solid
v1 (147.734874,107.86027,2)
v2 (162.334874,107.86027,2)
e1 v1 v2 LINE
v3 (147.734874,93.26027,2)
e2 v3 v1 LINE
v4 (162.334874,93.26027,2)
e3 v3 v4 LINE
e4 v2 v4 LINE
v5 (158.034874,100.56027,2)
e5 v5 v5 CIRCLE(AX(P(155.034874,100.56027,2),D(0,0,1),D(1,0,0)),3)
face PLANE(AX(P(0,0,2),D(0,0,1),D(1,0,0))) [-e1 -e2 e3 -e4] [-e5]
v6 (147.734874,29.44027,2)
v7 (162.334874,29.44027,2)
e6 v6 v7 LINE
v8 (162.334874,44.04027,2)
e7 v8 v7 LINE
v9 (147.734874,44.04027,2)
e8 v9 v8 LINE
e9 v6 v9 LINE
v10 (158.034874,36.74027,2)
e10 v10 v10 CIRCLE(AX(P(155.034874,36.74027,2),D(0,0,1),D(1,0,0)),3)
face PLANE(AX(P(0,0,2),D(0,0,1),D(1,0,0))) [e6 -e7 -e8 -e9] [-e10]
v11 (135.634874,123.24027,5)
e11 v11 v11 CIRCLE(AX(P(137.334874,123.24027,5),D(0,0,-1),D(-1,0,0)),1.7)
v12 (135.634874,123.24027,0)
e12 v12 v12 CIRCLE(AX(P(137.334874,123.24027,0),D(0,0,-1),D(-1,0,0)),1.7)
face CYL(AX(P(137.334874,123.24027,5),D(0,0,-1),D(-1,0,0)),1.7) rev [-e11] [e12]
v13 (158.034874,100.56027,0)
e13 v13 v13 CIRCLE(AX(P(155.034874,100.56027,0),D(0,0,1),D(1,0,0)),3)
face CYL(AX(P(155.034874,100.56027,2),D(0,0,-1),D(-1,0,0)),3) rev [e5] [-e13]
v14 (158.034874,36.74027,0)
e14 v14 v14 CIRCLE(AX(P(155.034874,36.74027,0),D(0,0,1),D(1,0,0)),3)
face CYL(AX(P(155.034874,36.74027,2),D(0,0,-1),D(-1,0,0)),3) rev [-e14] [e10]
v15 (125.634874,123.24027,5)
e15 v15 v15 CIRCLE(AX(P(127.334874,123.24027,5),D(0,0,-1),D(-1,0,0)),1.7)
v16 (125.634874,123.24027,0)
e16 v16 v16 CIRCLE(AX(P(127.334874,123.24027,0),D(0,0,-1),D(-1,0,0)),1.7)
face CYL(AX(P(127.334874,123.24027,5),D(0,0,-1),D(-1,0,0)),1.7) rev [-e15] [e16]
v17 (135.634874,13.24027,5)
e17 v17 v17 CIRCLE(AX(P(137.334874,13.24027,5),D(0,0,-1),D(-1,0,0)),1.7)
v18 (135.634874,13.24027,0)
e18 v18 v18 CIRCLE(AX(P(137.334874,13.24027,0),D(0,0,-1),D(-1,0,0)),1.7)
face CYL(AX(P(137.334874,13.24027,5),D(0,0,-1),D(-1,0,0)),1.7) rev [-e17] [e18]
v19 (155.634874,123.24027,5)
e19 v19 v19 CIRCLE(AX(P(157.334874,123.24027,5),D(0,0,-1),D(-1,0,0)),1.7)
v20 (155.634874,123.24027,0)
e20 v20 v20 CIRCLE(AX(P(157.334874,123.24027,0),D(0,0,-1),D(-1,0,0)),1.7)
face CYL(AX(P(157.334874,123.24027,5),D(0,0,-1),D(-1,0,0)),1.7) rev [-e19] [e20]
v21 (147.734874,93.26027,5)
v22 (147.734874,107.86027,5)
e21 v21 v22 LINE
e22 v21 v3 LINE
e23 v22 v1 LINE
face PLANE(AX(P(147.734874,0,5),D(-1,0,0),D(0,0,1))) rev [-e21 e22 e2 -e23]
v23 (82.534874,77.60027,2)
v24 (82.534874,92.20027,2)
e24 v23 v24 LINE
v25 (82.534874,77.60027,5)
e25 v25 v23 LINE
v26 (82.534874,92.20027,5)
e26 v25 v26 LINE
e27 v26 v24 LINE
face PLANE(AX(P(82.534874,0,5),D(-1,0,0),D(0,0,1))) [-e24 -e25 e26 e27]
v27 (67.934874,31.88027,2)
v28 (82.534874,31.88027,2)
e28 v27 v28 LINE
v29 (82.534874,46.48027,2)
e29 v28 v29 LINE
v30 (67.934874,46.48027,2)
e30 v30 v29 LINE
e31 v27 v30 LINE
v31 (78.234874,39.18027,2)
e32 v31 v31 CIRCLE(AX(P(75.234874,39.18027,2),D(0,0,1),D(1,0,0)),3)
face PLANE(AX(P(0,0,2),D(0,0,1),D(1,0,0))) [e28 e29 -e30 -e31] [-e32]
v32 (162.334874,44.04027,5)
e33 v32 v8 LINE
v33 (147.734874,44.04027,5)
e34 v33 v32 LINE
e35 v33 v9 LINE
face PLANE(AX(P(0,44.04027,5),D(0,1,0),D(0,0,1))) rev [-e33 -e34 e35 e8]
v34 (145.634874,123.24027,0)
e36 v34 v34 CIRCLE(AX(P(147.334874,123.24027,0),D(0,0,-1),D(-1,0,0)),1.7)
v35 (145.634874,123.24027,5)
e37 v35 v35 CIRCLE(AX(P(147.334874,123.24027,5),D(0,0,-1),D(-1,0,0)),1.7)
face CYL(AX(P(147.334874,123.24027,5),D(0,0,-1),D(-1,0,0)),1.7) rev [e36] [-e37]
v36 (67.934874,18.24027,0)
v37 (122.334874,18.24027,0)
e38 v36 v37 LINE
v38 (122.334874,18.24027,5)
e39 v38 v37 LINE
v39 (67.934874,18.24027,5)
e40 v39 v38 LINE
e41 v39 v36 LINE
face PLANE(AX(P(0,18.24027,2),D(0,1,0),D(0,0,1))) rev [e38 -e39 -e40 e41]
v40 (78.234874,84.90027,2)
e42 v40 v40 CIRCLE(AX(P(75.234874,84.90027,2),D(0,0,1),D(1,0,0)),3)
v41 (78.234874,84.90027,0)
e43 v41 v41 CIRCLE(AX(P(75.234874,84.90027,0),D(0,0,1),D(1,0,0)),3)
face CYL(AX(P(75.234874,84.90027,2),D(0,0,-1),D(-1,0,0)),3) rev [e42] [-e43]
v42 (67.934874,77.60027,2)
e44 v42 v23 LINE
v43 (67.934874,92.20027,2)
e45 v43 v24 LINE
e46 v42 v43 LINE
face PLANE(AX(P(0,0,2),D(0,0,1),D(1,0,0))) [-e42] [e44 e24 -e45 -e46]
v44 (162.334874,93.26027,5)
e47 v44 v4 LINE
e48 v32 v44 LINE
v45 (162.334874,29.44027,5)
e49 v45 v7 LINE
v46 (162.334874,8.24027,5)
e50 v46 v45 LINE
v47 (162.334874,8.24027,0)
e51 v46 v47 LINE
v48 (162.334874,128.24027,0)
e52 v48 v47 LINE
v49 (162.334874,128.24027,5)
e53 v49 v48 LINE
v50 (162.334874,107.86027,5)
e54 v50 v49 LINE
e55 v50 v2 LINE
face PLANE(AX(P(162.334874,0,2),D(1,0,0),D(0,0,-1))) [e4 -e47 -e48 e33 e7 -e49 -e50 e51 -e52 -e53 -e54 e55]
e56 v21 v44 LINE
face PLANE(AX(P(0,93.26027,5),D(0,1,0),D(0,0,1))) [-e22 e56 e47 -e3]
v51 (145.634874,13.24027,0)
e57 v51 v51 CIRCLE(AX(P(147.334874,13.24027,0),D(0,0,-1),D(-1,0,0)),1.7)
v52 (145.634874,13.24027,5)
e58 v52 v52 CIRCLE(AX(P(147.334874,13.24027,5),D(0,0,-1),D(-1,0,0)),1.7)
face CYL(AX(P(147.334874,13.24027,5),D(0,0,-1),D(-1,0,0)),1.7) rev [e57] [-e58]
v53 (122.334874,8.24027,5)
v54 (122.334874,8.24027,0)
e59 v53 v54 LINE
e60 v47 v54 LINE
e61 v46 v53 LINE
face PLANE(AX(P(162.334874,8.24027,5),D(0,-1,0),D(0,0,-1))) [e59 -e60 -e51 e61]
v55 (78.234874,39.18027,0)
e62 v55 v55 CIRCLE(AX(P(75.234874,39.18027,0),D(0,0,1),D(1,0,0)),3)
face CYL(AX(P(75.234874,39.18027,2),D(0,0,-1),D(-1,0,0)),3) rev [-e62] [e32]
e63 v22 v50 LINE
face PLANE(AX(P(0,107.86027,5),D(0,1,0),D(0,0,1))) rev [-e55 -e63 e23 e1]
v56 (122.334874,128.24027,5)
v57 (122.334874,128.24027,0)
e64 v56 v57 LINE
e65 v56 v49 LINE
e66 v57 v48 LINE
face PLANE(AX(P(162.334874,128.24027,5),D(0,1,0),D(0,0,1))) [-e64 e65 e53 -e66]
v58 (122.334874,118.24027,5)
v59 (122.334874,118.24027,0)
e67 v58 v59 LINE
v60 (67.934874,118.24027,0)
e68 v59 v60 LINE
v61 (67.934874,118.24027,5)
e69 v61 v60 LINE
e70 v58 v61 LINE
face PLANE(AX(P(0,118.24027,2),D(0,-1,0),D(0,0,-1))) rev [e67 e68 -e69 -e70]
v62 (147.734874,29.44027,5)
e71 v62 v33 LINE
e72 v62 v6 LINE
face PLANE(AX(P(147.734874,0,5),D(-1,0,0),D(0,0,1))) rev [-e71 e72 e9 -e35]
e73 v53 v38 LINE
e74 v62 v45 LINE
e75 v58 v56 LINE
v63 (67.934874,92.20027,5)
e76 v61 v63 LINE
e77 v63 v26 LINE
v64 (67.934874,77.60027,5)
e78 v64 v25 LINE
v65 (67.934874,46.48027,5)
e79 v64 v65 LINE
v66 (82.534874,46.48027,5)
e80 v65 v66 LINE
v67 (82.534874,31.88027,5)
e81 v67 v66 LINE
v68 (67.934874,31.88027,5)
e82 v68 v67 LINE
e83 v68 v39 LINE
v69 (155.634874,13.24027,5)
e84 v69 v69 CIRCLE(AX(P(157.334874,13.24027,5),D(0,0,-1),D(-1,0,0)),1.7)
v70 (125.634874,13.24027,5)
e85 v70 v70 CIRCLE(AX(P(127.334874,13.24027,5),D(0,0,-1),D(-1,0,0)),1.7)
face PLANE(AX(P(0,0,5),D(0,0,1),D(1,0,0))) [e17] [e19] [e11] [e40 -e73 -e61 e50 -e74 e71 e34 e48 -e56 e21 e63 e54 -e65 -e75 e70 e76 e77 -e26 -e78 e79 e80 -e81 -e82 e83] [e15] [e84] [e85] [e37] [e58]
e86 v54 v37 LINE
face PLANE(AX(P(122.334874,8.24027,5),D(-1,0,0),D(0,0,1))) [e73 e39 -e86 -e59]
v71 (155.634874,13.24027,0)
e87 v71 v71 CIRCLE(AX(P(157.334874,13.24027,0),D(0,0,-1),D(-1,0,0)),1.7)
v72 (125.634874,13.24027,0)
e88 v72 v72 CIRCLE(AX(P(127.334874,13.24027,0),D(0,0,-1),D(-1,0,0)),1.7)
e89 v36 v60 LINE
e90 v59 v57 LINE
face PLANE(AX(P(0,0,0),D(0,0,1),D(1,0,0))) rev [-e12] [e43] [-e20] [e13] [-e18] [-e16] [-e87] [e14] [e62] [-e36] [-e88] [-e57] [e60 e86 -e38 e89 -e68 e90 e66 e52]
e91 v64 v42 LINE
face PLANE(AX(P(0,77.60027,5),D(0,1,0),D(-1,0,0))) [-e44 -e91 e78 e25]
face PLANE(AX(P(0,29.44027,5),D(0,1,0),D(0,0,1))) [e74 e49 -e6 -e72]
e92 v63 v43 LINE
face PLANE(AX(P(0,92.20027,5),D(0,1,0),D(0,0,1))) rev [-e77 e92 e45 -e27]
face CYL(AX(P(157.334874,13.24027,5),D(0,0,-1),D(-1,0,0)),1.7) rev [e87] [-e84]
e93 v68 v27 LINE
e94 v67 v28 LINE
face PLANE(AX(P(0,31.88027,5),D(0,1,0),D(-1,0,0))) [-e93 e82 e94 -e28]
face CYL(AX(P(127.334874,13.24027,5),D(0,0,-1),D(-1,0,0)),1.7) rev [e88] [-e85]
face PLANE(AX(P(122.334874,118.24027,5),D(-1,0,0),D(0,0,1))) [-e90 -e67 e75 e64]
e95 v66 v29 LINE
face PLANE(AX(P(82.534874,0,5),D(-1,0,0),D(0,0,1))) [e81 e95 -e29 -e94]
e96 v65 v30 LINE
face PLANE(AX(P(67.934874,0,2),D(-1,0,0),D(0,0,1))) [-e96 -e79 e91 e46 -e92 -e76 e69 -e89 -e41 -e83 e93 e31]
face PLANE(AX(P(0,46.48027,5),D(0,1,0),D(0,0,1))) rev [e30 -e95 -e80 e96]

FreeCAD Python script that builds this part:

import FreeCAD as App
import Part
import Sketcher

V = App.Vector

doc = App.newDocument("Part")
body = doc.addObject("PartDesign::Body", "Body")

# Sketch on XY plane
sketch1 = body.newObject("Sketcher::SketchObject", "Sketch")
sketch1.AttachmentSupport = (doc.getObject("XY_Plane"), [""])
sketch1.MapMode = "FlatFace"
sketch1.addGeometry(Part.LineSegment(V(67.9, 118.2, 0), V(67.9, 18.2, 0)), False)
sketch1.addGeometry(Part.LineSegment(V(67.9, 18.2, 0), V(162.3, 18.2, 0)), False)
sketch1.addGeometry(Part.LineSegment(V(162.3, 18.2, 0), V(162.3, 118.2, 0)), False)
sketch1.addGeometry(Part.LineSegment(V(162.3, 118.2, 0), V(67.9, 118.2, 0)), False)
sketch1.addGeometry(Part.Circle(V(75.2, 39.2, 0), V(0, 0, 1), 3), False)
sketch1.addGeometry(Part.Circle(V(155, 36.7, 0), V(0, 0, 1), 3), False)
sketch1.addGeometry(Part.Circle(V(75.2, 84.9, 0), V(0, 0, 1), 3), False)
sketch1.addGeometry(Part.Circle(V(155, 100.6, 0), V(0, 0, 1), 3), False)
sketch1.addConstraint(Sketcher.Constraint("Coincident", 0, 2, 1, 1))
sketch1.addConstraint(Sketcher.Constraint("Coincident", 1, 2, 2, 1))
sketch1.addConstraint(Sketcher.Constraint("Coincident", 2, 2, 3, 1))
sketch1.addConstraint(Sketcher.Constraint("Coincident", 3, 2, 0, 1))
sketch1.addConstraint(Sketcher.Constraint("Vertical", 0))
sketch1.addConstraint(Sketcher.Constraint("Horizontal", 1))
sketch1.addConstraint(Sketcher.Constraint("Vertical", 2))
sketch1.addConstraint(Sketcher.Constraint("Horizontal", 3))
sketch1.addConstraint(Sketcher.Constraint("Equal", 4, 5))
sketch1.addConstraint(Sketcher.Constraint("Equal", 5, 6))
sketch1.addConstraint(Sketcher.Constraint("Equal", 6, 7))
sketch1.addConstraint(Sketcher.Constraint("Vertical", 4, 3, 6, 3))
sketch1.addConstraint(Sketcher.Constraint("Vertical", 5, 3, 7, 3))
sketch1.addConstraint(Sketcher.Constraint("Diameter", 4, 6.0))
sketch1.addConstraint(Sketcher.Constraint("DistanceY", 0, 2, 0, 1, 100.0))
sketch1.addConstraint(Sketcher.Constraint("DistanceX", 1, 1, 1, 2, 94.4))
sketch1.addConstraint(Sketcher.Constraint("DistanceX", 4, 3, 5, 3, 79.8))
sketch1.addConstraint(Sketcher.Constraint("DistanceX", 0, 2, 4, 3, 7.3))
sketch1.addConstraint(Sketcher.Constraint("DistanceY", 0, 2, 5, 3, 18.5))
sketch1.addConstraint(Sketcher.Constraint("DistanceY", 5, 3, 4, 3, 2.44))
sketch1.addConstraint(Sketcher.Constraint("DistanceY", 4, 3, 6, 3, 45.72))
sketch1.addConstraint(Sketcher.Constraint("DistanceY", 5, 3, 7, 3, 63.82))
sketch1.addConstraint(Sketcher.Constraint("DistanceY", -1, 1, 4, 3, 39.18027))
sketch1.addConstraint(Sketcher.Constraint("DistanceX", -1, 1, 4, 3, 75.234874))
pad1 = body.newObject("PartDesign::Pad", "Pad")
pad1.Profile = sketch1
pad1.Length = 2

# Sketch on XY plane
sketch2 = body.newObject("Sketcher::SketchObject", "Sketch001")
sketch2.AttachmentSupport = (doc.getObject("XY_Plane"), [""])
sketch2.MapMode = "FlatFace"
sketch2.AttachmentOffset = App.Placement(V(0, 0, 2), App.Rotation())
sketch2.addGeometry(Part.LineSegment(V(83, 78, 0), V(68, 78, 0)), False)
sketch2.addGeometry(Part.LineSegment(V(68, 78, 0), V(68, 46, 0)), False)
sketch2.addGeometry(Part.LineSegment(V(68, 46, 0), V(83, 46, 0)), False)
sketch2.addGeometry(Part.LineSegment(V(83, 46, 0), V(83, 32, 0)), False)
sketch2.addGeometry(Part.LineSegment(V(83, 32, 0), V(68, 32, 0)), False)
sketch2.addGeometry(Part.LineSegment(V(68, 32, 0), V(68, 18, 0)), False)
sketch2.addGeometry(Part.LineSegment(V(68, 18, 0), V(162, 18, 0)), False)
sketch2.addGeometry(Part.LineSegment(V(162, 18, 0), V(162, 29, 0)), False)
sketch2.addGeometry(Part.LineSegment(V(162, 29, 0), V(148, 29, 0)), False)
sketch2.addGeometry(Part.LineSegment(V(148, 29, 0), V(148, 44, 0)), False)
sketch2.addGeometry(Part.LineSegment(V(148, 44, 0), V(162, 44, 0)), False)
sketch2.addGeometry(Part.LineSegment(V(162, 44, 0), V(162, 93, 0)), False)
sketch2.addGeometry(Part.LineSegment(V(162, 93, 0), V(148, 93, 0)), False)
sketch2.addGeometry(Part.LineSegment(V(148, 93, 0), V(148, 108, 0)), False)
sketch2.addGeometry(Part.LineSegment(V(148, 108, 0), V(162, 108, 0)), False)
sketch2.addGeometry(Part.LineSegment(V(162, 108, 0), V(162, 118, 0)), False)
sketch2.addGeometry(Part.LineSegment(V(162, 118, 0), V(68, 118, 0)), False)
sketch2.addGeometry(Part.LineSegment(V(68, 118, 0), V(68, 92, 0)), False)
sketch2.addGeometry(Part.LineSegment(V(68, 92, 0), V(83, 92, 0)), False)
sketch2.addGeometry(Part.LineSegment(V(83, 92, 0), V(83, 78, 0)), False)
sketch2.addConstraint(Sketcher.Constraint("Coincident", 0, 2, 1, 1))
sketch2.addConstraint(Sketcher.Constraint("Coincident", 1, 2, 2, 1))
sketch2.addConstraint(Sketcher.Constraint("Coincident", 2, 2, 3, 1))
sketch2.addConstraint(Sketcher.Constraint("Coincident", 3, 2, 4, 1))
sketch2.addConstraint(Sketcher.Constraint("Coincident", 4, 2, 5, 1))
sketch2.addConstraint(Sketcher.Constraint("Coincident", 5, 2, 6, 1))
sketch2.addConstraint(Sketcher.Constraint("Coincident", 6, 2, 7, 1))
sketch2.addConstraint(Sketcher.Constraint("Coincident", 7, 2, 8, 1))
sketch2.addConstraint(Sketcher.Constraint("Coincident", 8, 2, 9, 1))
sketch2.addConstraint(Sketcher.Constraint("Coincident", 9, 2, 10, 1))
sketch2.addConstraint(Sketcher.Constraint("Coincident", 10, 2, 11, 1))
sketch2.addConstraint(Sketcher.Constraint("Coincident", 11, 2, 12, 1))
sketch2.addConstraint(Sketcher.Constraint("Coincident", 12, 2, 13, 1))
sketch2.addConstraint(Sketcher.Constraint("Coincident", 13, 2, 14, 1))
sketch2.addConstraint(Sketcher.Constraint("Coincident", 14, 2, 15, 1))
sketch2.addConstraint(Sketcher.Constraint("Coincident", 15, 2, 16, 1))
sketch2.addConstraint(Sketcher.Constraint("Coincident", 16, 2, 17, 1))
sketch2.addConstraint(Sketcher.Constraint("Coincident", 17, 2, 18, 1))
sketch2.addConstraint(Sketcher.Constraint("Coincident", 18, 2, 19, 1))
sketch2.addConstraint(Sketcher.Constraint("Coincident", 19, 2, 0, 1))
sketch2.addConstraint(Sketcher.Constraint("Horizontal", 0))
sketch2.addConstraint(Sketcher.Constraint("Vertical", 1))
sketch2.addConstraint(Sketcher.Constraint("Horizontal", 2))
sketch2.addConstraint(Sketcher.Constraint("Vertical", 3))
sketch2.addConstraint(Sketcher.Constraint("Horizontal", 4))
sketch2.addConstraint(Sketcher.Constraint("Vertical", 5))
sketch2.addConstraint(Sketcher.Constraint("Horizontal", 6))
sketch2.addConstraint(Sketcher.Constraint("Vertical", 7))
sketch2.addConstraint(Sketcher.Constraint("Horizontal", 8))
sketch2.addConstraint(Sketcher.Constraint("Vertical", 9))
sketch2.addConstraint(Sketcher.Constraint("Horizontal", 10))
sketch2.addConstraint(Sketcher.Constraint("Vertical", 11))
sketch2.addConstraint(Sketcher.Constraint("Horizontal", 12))
sketch2.addConstraint(Sketcher.Constraint("Vertical", 13))
sketch2.addConstraint(Sketcher.Constraint("Horizontal", 14))
sketch2.addConstraint(Sketcher.Constraint("Vertical", 15))
sketch2.addConstraint(Sketcher.Constraint("Horizontal", 16))
sketch2.addConstraint(Sketcher.Constraint("Vertical", 17))
sketch2.addConstraint(Sketcher.Constraint("Horizontal", 18))
sketch2.addConstraint(Sketcher.Constraint("Vertical", 19))
sketch2.addConstraint(Sketcher.Constraint("Vertical", 1, 2, 4, 2))
sketch2.addConstraint(Sketcher.Constraint("Vertical", 7, 2, 10, 2))
sketch2.addConstraint(Sketcher.Constraint("Vertical", 9, 2, 12, 2))
sketch2.addConstraint(Sketcher.Constraint("Vertical", 11, 2, 14, 2))
sketch2.addConstraint(Sketcher.Constraint("Vertical", 5, 2, 16, 2))
sketch2.addConstraint(Sketcher.Constraint("Vertical", 3, 2, 18, 2))
sketch2.addConstraint(Sketcher.Constraint("Equal", 4, 8))
sketch2.addConstraint(Sketcher.Constraint("Equal", 18, 3))
sketch2.addConstraint(Sketcher.Constraint("Equal", 3, 9))
sketch2.addConstraint(Sketcher.Constraint("Equal", 9, 13))
sketch2.addConstraint(Sketcher.Constraint("Equal", 13, 19))
sketch2.addConstraint(Sketcher.Constraint("DistanceX", 0, 2, 0, 1, 14.6))
sketch2.addConstraint(Sketcher.Constraint("DistanceX", 6, 1, 6, 2, 94.4))
sketch2.addConstraint(Sketcher.Constraint("DistanceY", 7, 1, 7, 2, 11.2))
sketch2.addConstraint(Sketcher.Constraint("DistanceY", 1, 2, 1, 1, 31.12))
sketch2.addConstraint(Sketcher.Constraint("DistanceY", 5, 2, 5, 1, 13.64))
sketch2.addConstraint(Sketcher.Constraint("DistanceY", 11, 1, 11, 2, 49.22))
sketch2.addConstraint(Sketcher.Constraint("DistanceY", 15, 1, 15, 2, 10.38))
sketch2.addConstraint(Sketcher.Constraint("DistanceY", -1, 1, 0, 2, 77.60027))
sketch2.addConstraint(Sketcher.Constraint("DistanceX", -1, 1, 0, 2, 67.934874))
pad2 = body.newObject("PartDesign::Pad", "Pad001")
pad2.Profile = sketch2
pad2.Length = 3

# Sketch on XY plane
sketch3 = body.newObject("Sketcher::SketchObject", "Sketch002")
sketch3.AttachmentSupport = (doc.getObject("XY_Plane"), [""])
sketch3.MapMode = "FlatFace"
sketch3.addGeometry(Part.LineSegment(V(162.3, 128.2, 0), V(162.3, 118.2, 0)), False)
sketch3.addGeometry(Part.LineSegment(V(162.3, 118.2, 0), V(122.3, 118.2, 0)), False)
sketch3.addGeometry(Part.LineSegment(V(122.3, 118.2, 0), V(122.3, 128.2, 0)), False)
sketch3.addGeometry(Part.LineSegment(V(122.3, 128.2, 0), V(162.3, 128.2, 0)), False)
sketch3.addGeometry(Part.Circle(V(157.3, 123.2, 0), V(0, 0, 1), 1.7), False)
sketch3.addGeometry(Part.Circle(V(147.3, 123.2, 0), V(0, 0, 1), 1.7), False)
sketch3.addGeometry(Part.Circle(V(137.3, 123.2, 0), V(0, 0, 1), 1.7), False)
sketch3.addGeometry(Part.Circle(V(127.3, 123.2, 0), V(0, 0, 1), 1.7), False)
sketch3.addGeometry(Part.LineSegment(V(162.3, 18.2, 0), V(162.3, 8.2, 0)), False)
sketch3.addGeometry(Part.LineSegment(V(162.3, 8.2, 0), V(122.3, 8.2, 0)), False)
sketch3.addGeometry(Part.LineSegment(V(122.3, 8.2, 0), V(122.3, 18.2, 0)), False)
sketch3.addGeometry(Part.LineSegment(V(122.3, 18.2, 0), V(162.3, 18.2, 0)), False)
sketch3.addGeometry(Part.Circle(V(157.3, 13.2, 0), V(0, 0, 1), 1.7), False)
sketch3.addGeometry(Part.Circle(V(147.3, 13.2, 0), V(0, 0, 1), 1.7), False)
sketch3.addGeometry(Part.Circle(V(137.3, 13.2, 0), V(0, 0, 1), 1.7), False)
sketch3.addGeometry(Part.Circle(V(127.3, 13.2, 0), V(0, 0, 1), 1.7), False)
sketch3.addConstraint(Sketcher.Constraint("Coincident", 0, 2, 1, 1))
sketch3.addConstraint(Sketcher.Constraint("Coincident", 1, 2, 2, 1))
sketch3.addConstraint(Sketcher.Constraint("Coincident", 2, 2, 3, 1))
sketch3.addConstraint(Sketcher.Constraint("Coincident", 3, 2, 0, 1))
sketch3.addConstraint(Sketcher.Constraint("Coincident", 8, 2, 9, 1))
sketch3.addConstraint(Sketcher.Constraint("Coincident", 9, 2, 10, 1))
sketch3.addConstraint(Sketcher.Constraint("Coincident", 10, 2, 11, 1))
sketch3.addConstraint(Sketcher.Constraint("Coincident", 11, 2, 8, 1))
sketch3.addConstraint(Sketcher.Constraint("Vertical", 0))
sketch3.addConstraint(Sketcher.Constraint("Horizontal", 1))
sketch3.addConstraint(Sketcher.Constraint("Vertical", 2))
sketch3.addConstraint(Sketcher.Constraint("Horizontal", 3))
sketch3.addConstraint(Sketcher.Constraint("Vertical", 8))
sketch3.addConstraint(Sketcher.Constraint("Horizontal", 9))
sketch3.addConstraint(Sketcher.Constraint("Vertical", 10))
sketch3.addConstraint(Sketcher.Constraint("Horizontal", 11))
sketch3.addConstraint(Sketcher.Constraint("Equal", 4, 5))
sketch3.addConstraint(Sketcher.Constraint("Equal", 5, 6))
sketch3.addConstraint(Sketcher.Constraint("Equal", 6, 7))
sketch3.addConstraint(Sketcher.Constraint("Equal", 7, 12))
sketch3.addConstraint(Sketcher.Constraint("Equal", 12, 13))
sketch3.addConstraint(Sketcher.Constraint("Equal", 13, 14))
sketch3.addConstraint(Sketcher.Constraint("Equal", 14, 15))
sketch3.addConstraint(Sketcher.Constraint("Horizontal", 4, 3, 5, 3))
sketch3.addConstraint(Sketcher.Constraint("Horizontal", 5, 3, 6, 3))
sketch3.addConstraint(Sketcher.Constraint("Horizontal", 6, 3, 7, 3))
sketch3.addConstraint(Sketcher.Constraint("Horizontal", 12, 3, 13, 3))
sketch3.addConstraint(Sketcher.Constraint("Horizontal", 13, 3, 14, 3))
sketch3.addConstraint(Sketcher.Constraint("Horizontal", 14, 3, 15, 3))
sketch3.addConstraint(Sketcher.Constraint("Vertical", 4, 3, 12, 3))
sketch3.addConstraint(Sketcher.Constraint("Vertical", 5, 3, 13, 3))
sketch3.addConstraint(Sketcher.Constraint("Vertical", 6, 3, 14, 3))
sketch3.addConstraint(Sketcher.Constraint("Vertical", 7, 3, 15, 3))
sketch3.addConstraint(Sketcher.Constraint("Vertical", 3, 2, 8, 2))
sketch3.addConstraint(Sketcher.Constraint("Vertical", 2, 2, 9, 2))
sketch3.addConstraint(Sketcher.Constraint("Equal", 2, 8))
sketch3.addConstraint(Sketcher.Constraint("Diameter", 4, 3.4))
sketch3.addConstraint(Sketcher.Constraint("DistanceX", 1, 2, 1, 1, 40.0))
sketch3.addConstraint(Sketcher.Constraint("DistanceY", 0, 2, 0, 1, 10.0))
sketch3.addConstraint(Sketcher.Constraint("DistanceX", 5, 3, 4, 3, 10.0))
sketch3.addConstraint(Sketcher.Constraint("DistanceX", 6, 3, 5, 3, 10.0))
sketch3.addConstraint(Sketcher.Constraint("DistanceX", 7, 3, 6, 3, 10.0))
sketch3.addConstraint(Sketcher.Constraint("DistanceY", 12, 3, 4, 3, 110.0))
sketch3.addConstraint(Sketcher.Constraint("DistanceX", 4, 3, 0, 2, 5.0))
sketch3.addConstraint(Sketcher.Constraint("DistanceY", 0, 2, 4, 3, 5.0))
sketch3.addConstraint(Sketcher.Constraint("DistanceY", 8, 2, 12, 3, 5.0))
sketch3.addConstraint(Sketcher.Constraint("DistanceY", -1, 1, 4, 3, 123.24027))
sketch3.addConstraint(Sketcher.Constraint("DistanceX", -1, 1, 4, 3, 157.334874))
pad3 = body.newObject("PartDesign::Pad", "Pad002")
pad3.Profile = sketch3
pad3.Length = 5

doc.recompute()
